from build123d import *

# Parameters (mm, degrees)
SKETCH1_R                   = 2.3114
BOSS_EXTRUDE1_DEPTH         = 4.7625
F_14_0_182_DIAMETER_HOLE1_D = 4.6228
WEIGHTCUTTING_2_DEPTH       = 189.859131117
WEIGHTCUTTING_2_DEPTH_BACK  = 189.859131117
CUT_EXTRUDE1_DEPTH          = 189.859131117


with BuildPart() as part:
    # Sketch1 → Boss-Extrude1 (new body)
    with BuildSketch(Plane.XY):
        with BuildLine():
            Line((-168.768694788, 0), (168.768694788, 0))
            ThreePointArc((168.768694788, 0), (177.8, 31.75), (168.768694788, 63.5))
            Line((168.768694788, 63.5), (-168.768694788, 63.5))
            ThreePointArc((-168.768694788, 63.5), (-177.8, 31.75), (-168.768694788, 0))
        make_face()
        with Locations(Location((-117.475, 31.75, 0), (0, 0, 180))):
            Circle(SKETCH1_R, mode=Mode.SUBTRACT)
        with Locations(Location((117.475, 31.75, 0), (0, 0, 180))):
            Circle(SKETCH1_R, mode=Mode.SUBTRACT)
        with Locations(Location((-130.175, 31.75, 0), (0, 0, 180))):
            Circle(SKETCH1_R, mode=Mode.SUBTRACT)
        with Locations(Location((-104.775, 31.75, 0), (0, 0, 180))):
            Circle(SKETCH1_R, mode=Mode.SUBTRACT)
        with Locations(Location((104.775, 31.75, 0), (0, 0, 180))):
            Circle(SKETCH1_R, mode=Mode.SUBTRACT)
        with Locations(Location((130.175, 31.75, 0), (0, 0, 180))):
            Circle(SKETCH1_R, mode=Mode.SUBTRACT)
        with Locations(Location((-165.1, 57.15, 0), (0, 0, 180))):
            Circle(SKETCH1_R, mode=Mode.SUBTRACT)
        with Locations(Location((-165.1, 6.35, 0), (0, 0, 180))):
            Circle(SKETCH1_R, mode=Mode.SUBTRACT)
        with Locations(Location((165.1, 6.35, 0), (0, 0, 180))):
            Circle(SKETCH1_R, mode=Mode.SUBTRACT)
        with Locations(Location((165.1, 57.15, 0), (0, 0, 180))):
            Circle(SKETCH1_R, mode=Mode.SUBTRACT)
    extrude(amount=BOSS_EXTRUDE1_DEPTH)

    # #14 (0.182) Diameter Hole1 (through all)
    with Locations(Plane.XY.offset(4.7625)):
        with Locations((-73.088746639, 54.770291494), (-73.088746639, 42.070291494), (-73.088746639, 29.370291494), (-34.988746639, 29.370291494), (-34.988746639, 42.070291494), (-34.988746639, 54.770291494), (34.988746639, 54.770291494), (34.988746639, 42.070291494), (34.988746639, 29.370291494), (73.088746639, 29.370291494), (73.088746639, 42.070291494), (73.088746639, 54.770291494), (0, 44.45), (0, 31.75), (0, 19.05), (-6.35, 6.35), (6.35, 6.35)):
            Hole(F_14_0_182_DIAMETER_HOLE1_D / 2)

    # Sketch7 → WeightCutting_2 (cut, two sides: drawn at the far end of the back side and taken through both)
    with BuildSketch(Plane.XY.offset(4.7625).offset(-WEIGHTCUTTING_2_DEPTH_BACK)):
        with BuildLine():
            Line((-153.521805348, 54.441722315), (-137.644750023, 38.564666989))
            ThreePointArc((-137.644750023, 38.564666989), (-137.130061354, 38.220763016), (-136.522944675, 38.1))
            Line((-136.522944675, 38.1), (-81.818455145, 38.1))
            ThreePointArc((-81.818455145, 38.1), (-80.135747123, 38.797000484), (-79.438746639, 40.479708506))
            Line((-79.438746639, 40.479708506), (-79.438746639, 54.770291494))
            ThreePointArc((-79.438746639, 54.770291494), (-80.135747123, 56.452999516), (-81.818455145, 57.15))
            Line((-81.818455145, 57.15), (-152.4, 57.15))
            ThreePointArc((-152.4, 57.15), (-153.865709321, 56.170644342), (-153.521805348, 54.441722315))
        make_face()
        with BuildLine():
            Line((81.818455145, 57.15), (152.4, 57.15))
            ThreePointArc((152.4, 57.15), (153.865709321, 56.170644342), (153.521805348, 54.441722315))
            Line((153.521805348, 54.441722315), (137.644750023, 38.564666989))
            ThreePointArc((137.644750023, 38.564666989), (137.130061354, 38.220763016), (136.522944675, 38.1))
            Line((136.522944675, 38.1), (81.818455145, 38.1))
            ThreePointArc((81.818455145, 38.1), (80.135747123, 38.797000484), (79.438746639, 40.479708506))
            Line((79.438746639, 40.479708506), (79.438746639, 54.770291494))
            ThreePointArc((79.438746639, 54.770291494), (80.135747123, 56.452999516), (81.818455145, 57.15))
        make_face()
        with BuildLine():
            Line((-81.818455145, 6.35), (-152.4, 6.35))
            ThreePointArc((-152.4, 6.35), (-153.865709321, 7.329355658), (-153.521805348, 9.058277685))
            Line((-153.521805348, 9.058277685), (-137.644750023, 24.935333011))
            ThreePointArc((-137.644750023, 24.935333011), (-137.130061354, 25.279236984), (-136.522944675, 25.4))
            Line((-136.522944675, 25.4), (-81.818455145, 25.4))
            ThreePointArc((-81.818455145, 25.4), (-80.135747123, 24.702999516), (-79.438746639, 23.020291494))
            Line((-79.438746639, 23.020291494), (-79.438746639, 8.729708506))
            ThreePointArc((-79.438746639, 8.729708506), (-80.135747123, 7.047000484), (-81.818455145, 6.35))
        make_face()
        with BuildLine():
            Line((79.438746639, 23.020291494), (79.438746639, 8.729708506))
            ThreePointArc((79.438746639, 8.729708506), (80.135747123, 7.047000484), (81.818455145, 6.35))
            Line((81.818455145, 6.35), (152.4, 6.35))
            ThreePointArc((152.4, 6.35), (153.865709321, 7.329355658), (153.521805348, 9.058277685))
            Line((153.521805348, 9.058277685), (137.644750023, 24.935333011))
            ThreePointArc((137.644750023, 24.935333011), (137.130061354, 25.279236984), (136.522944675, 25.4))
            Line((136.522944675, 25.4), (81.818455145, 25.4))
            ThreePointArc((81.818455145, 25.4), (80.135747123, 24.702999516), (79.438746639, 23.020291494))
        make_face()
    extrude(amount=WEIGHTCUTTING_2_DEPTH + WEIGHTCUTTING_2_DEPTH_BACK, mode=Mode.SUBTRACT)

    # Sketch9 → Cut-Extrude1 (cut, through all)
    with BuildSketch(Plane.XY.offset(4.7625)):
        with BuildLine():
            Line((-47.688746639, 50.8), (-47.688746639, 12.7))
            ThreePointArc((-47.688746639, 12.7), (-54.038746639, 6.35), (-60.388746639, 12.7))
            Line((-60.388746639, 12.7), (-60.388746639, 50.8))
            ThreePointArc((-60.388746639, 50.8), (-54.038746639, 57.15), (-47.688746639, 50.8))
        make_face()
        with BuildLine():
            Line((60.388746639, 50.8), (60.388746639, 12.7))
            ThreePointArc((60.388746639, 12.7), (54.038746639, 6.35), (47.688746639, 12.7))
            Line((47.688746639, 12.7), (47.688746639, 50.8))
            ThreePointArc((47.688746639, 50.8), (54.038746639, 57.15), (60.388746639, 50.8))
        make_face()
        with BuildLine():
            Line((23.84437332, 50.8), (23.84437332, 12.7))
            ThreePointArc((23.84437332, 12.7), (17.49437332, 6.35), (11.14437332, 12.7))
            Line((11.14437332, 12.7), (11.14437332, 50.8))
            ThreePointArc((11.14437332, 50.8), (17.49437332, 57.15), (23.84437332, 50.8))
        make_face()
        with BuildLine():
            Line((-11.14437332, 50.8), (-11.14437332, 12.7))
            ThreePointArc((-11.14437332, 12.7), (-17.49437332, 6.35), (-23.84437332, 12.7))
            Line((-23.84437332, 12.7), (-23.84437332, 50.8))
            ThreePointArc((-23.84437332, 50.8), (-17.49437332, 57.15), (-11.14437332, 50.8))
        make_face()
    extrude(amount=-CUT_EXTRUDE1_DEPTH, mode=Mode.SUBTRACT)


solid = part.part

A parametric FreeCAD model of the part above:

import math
import FreeCAD as App
import Part
import Sketcher
from FreeCAD import Vector
Q = App.Units.Quantity

doc = App.newDocument("Part")
body = doc.addObject("PartDesign::Body", "Body")

# Sketch on XY plane
sketch1 = body.newObject("Sketcher::SketchObject", "Sketch")
sketch1.AttachmentSupport = (doc.getObject("XY_Plane"), [""])
sketch1.MapMode = "FlatFace"
sketch1.addGeometry([
    Part.LineSegment(Vector(-168.8, 0, 0), Vector(168.8, 0, 0)),  # 0
    Part.ArcOfCircle(Part.Circle(Vector(117.5, 31.8, 0), Vector(0, 0, 1), 60.3), math.radians(-32), math.radians(32)),  # 1
    Part.LineSegment(Vector(168.8, 63.5, 0), Vector(-168.8, 63.5, 0)),  # 2
    Part.ArcOfCircle(Part.Circle(Vector(-117.5, 31.8, 0), Vector(0, 0, 1), 60.3), math.radians(148), math.radians(212)),  # 3
    Part.Circle(Vector(-165.1, 6.3, 0), Vector(0, 0, 1), 2.3),  # 4
    Part.Circle(Vector(-130.2, 31.8, 0), Vector(0, 0, 1), 2.3),  # 5
    Part.Circle(Vector(-117.5, 31.8, 0), Vector(0, 0, 1), 2.3),  # 6
    Part.Circle(Vector(-104.8, 31.8, 0), Vector(0, 0, 1), 2.3),  # 7
    Part.Circle(Vector(165.1, 6.3, 0), Vector(0, 0, 1), 2.3),  # 8
    Part.Circle(Vector(104.8, 31.8, 0), Vector(0, 0, 1), 2.3),  # 9
    Part.Circle(Vector(117.5, 31.8, 0), Vector(0, 0, 1), 2.3),  # 10
    Part.Circle(Vector(130.2, 31.8, 0), Vector(0, 0, 1), 2.3),  # 11
    Part.Circle(Vector(-165.1, 57.1, 0), Vector(0, 0, 1), 2.3),  # 12
    Part.Circle(Vector(165.1, 57.1, 0), Vector(0, 0, 1), 2.3),  # 13
], False)
sketch1.addConstraint([
    Sketcher.Constraint("Coincident", 0, 2, 1, 1),
    Sketcher.Constraint("Coincident", 1, 2, 2, 1),
    Sketcher.Constraint("Coincident", 2, 2, 3, 1),
    Sketcher.Constraint("Coincident", 3, 2, 0, 1),
    Sketcher.Constraint("Horizontal", 0),
    Sketcher.Constraint("Horizontal", 2),
    Sketcher.Constraint("Coincident", 6, 3, 3, 3),
    Sketcher.Constraint("Coincident", 10, 3, 1, 3),
    Sketcher.Constraint("Equal", 1, 3),
    Sketcher.Constraint("Equal", 4, 5),
    Sketcher.Constraint("Equal", 5, 6),
    Sketcher.Constraint("Equal", 6, 7),
    Sketcher.Constraint("Equal", 7, 8),
    Sketcher.Constraint("Equal", 8, 9),
    Sketcher.Constraint("Equal", 9, 10),
    Sketcher.Constraint("Equal", 10, 11),
    Sketcher.Constraint("Equal", 11, 12),
    Sketcher.Constraint("Equal", 12, 13),
    Sketcher.Constraint("Symmetric", 0, 2, 3, 2, -1, 1),
    Sketcher.Constraint("Symmetric", 4, 3, 8, 3, -2),
    Sketcher.Constraint("Symmetric", 7, 3, 9, 3, -2),
    Sketcher.Constraint("Symmetric", 5, 3, 11, 3, -2),
    Sketcher.Constraint("Symmetric", 12, 3, 13, 3, -2),
    Sketcher.Constraint("Horizontal", 1, 3, 3, 3),
    Sketcher.Constraint("Horizontal", 3, 3, 5, 3),
    Sketcher.Constraint("Horizontal", 6, 3, 7, 3),
    Sketcher.Constraint("Vertical", 4, 3, 12, 3),
    Sketcher.Constraint("Vertical", 0, 2, 1, 2),
    Sketcher.Constraint("Diameter", 4, Q("0.182 in")),
    Sketcher.Constraint("Radius", 1, Q("2.375 in")),
    Sketcher.Constraint("DistanceY", 4, 3, 3, 3, Q("1 in")),
    Sketcher.Constraint("DistanceX", 5, 3, 7, 3, Q("1 in")),
    Sketcher.Constraint("DistanceY", 5, 3, 12, 3, Q("1 in")),
    Sketcher.Constraint("DistanceX", 4, 3, -1, 1, Q("6.5 in")),
    Sketcher.Constraint("DistanceY", -1, 1, 1, 2, Q("2.5 in")),
    Sketcher.Constraint("DistanceX", 5, 3, 3, 3, Q("0.5 in")),
    Sketcher.Constraint("DistanceX", 3, 3, 1, 3, Q("9.25 in")),
])
pad1 = body.newObject("PartDesign::Pad", "Pad")
pad1.Profile = sketch1
pad1.Length = Q("0.1875 in")

# Sketch on XY plane
sketch2 = body.newObject("Sketcher::SketchObject", "Sketch001")
sketch2.AttachmentSupport = (doc.getObject("XY_Plane"), [""])
sketch2.MapMode = "FlatFace"
sketch2.AttachmentOffset = App.Placement(Vector(0, 0, 0.1875 * 25.4), App.Rotation())
sketch2.addGeometry([
    Part.Circle(Vector(-73.1, 54.8, 0), Vector(0, 0, 1), 2.3),  # 0
    Part.Circle(Vector(-73.1, 42.1, 0), Vector(0, 0, 1), 2.3),  # 1
    Part.Circle(Vector(-73.1, 29.4, 0), Vector(0, 0, 1), 2.3),  # 2
    Part.Circle(Vector(-35, 29.4, 0), Vector(0, 0, 1), 2.3),  # 3
    Part.Circle(Vector(-35, 42.1, 0), Vector(0, 0, 1), 2.3),  # 4
    Part.Circle(Vector(-35, 54.8, 0), Vector(0, 0, 1), 2.3),  # 5
    Part.Circle(Vector(35, 54.8, 0), Vector(0, 0, 1), 2.3),  # 6
    Part.Circle(Vector(35, 42.1, 0), Vector(0, 0, 1), 2.3),  # 7
    Part.Circle(Vector(35, 29.4, 0), Vector(0, 0, 1), 2.3),  # 8
    Part.Circle(Vector(73.1, 29.4, 0), Vector(0, 0, 1), 2.3),  # 9
    Part.Circle(Vector(73.1, 42.1, 0), Vector(0, 0, 1), 2.3),  # 10
    Part.Circle(Vector(73.1, 54.8, 0), Vector(0, 0, 1), 2.3),  # 11
    Part.Circle(Vector(0, 44.5, 0), Vector(0, 0, 1), 2.3),  # 12
    Part.Circle(Vector(0, 31.8, 0), Vector(0, 0, 1), 2.3),  # 13
    Part.Circle(Vector(0, 19.1, 0), Vector(0, 0, 1), 2.3),  # 14
    Part.Circle(Vector(-6.3, 6.3, 0), Vector(0, 0, 1), 2.3),  # 15
    Part.Circle(Vector(6.3, 6.3, 0), Vector(0, 0, 1), 2.3),  # 16
], False)
sketch2.addConstraint([
    Sketcher.Constraint("Equal", 0, 1),
    Sketcher.Constraint("Equal", 1, 2),
    Sketcher.Constraint("Equal", 2, 3),
    Sketcher.Constraint("Equal", 3, 4),
    Sketcher.Constraint("Equal", 4, 5),
    Sketcher.Constraint("Equal", 5, 6),
    Sketcher.Constraint("Equal", 6, 7),
    Sketcher.Constraint("Equal", 7, 8),
    Sketcher.Constraint("Equal", 8, 9),
    Sketcher.Constraint("Equal", 9, 10),
    Sketcher.Constraint("Equal", 10, 11),
    Sketcher.Constraint("Equal", 11, 12),
    Sketcher.Constraint("Equal", 12, 13),
    Sketcher.Constraint("Equal", 13, 14),
    Sketcher.Constraint("Equal", 14, 15),
    Sketcher.Constraint("Equal", 15, 16),
    Sketcher.Constraint("Symmetric", 5, 3, 6, 3, -2),
    Sketcher.Constraint("Symmetric", 4, 3, 7, 3, -2),
    Sketcher.Constraint("Symmetric", 3, 3, 8, 3, -2),
    Sketcher.Constraint("Symmetric", 2, 3, 9, 3, -2),
    Sketcher.Constraint("Symmetric", 1, 3, 10, 3, -2),
    Sketcher.Constraint("Symmetric", 0, 3, 11, 3, -2),
    Sketcher.Constraint("Symmetric", 15, 3, 16, 3, -2),
    Sketcher.Constraint("PointOnObject", 12, 3, -2),
    Sketcher.Constraint("PointOnObject", 13, 3, -2),
    Sketcher.Constraint("PointOnObject", 14, 3, -2),
    Sketcher.Constraint("Horizontal", 2, 3, 3, 3),
    Sketcher.Constraint("Horizontal", 1, 3, 4, 3),
    Sketcher.Constraint("Horizontal", 0, 3, 5, 3),
    Sketcher.Constraint("Vertical", 0, 3, 1, 3),
    Sketcher.Constraint("Vertical", 1, 3, 2, 3),
    Sketcher.Constraint("Vertical", 3, 3, 4, 3),
    Sketcher.Constraint("Vertical", 4, 3, 5, 3),
    Sketcher.Constraint("Diameter", 0, Q("0.182 in")),
    Sketcher.Constraint("DistanceY", 2, 3, 0, 3, Q("1 in")),
    Sketcher.Constraint("DistanceY", 14, 3, 12, 3, Q("1 in")),
    Sketcher.Constraint("DistanceY", 15, 3, 13, 3, Q("1 in")),
    Sketcher.Constraint("DistanceY", 1, 3, 0, 3, Q("0.5 in")),
    Sketcher.Constraint("DistanceX", 2, 3, 3, 3, Q("1.5 in")),
    Sketcher.Constraint("DistanceY", 13, 3, 12, 3, Q("0.5 in")),
    Sketcher.Constraint("DistanceX", 15, 3, 16, 3, Q("0.5 in")),
    Sketcher.Constraint("DistanceY", -1, 1, 12, 3, Q("1.75 in")),
    Sketcher.Constraint("DistanceY", -1, 1, 0, 3, Q("54.770291 mm")),
    Sketcher.Constraint("DistanceX", 0, 3, -1, 1, Q("73.088747 mm")),
])
doc.recompute()
hole = body.newObject("PartDesign::Hole", "Hole")
hole.Profile = sketch2
hole.ThreadType = "None"
hole.Diameter = Q("0.182 in")
hole.DepthType = "ThroughAll"

# Sketch on XY plane
sketch3 = body.newObject("Sketcher::SketchObject", "Sketch002")
sketch3.AttachmentSupport = (doc.getObject("XY_Plane"), [""])
sketch3.MapMode = "FlatFace"
sketch3.AttachmentOffset = App.Placement(Vector(0, 0, 0.1875 * 25.4), App.Rotation())
sketch3.addGeometry([
    Part.LineSegment(Vector(-153.5, 54.4, 0), Vector(-137.6, 38.6, 0)),  # 0
    Part.ArcOfCircle(Part.Circle(Vector(-136.5, 39.7, 0), Vector(0, 0, 1), 1.6), math.radians(-135), math.radians(-90)),  # 1
    Part.LineSegment(Vector(-136.5, 38.1, 0), Vector(-81.8, 38.1, 0)),  # 2
    Part.ArcOfCircle(Part.Circle(Vector(-81.8, 40.5, 0), Vector(0, 0, 1), 2.4), math.radians(-90), math.radians(0)),  # 3
    Part.LineSegment(Vector(-79.4, 40.5, 0), Vector(-79.4, 54.8, 0)),  # 4
    Part.ArcOfCircle(Part.Circle(Vector(-81.8, 54.8, 0), Vector(0, 0, 1), 2.4), math.radians(0), math.radians(90)),  # 5
    Part.LineSegment(Vector(-81.8, 57.1, 0), Vector(-152.4, 57.1, 0)),  # 6
    Part.ArcOfCircle(Part.Circle(Vector(-152.4, 55.6, 0), Vector(0, 0, 1), 1.6), math.radians(90), math.radians(225)),  # 7
    Part.LineSegment(Vector(152.4, 57.1, 0), Vector(81.8, 57.1, 0)),  # 8
    Part.ArcOfCircle(Part.Circle(Vector(81.8, 54.8, 0), Vector(0, 0, 1), 2.4), math.radians(90), math.radians(180)),  # 9
    Part.LineSegment(Vector(79.4, 54.8, 0), Vector(79.4, 40.5, 0)),  # 10
    Part.ArcOfCircle(Part.Circle(Vector(81.8, 40.5, 0), Vector(0, 0, 1), 2.4), math.radians(180), math.radians(270)),  # 11
    Part.LineSegment(Vector(81.8, 38.1, 0), Vector(136.5, 38.1, 0)),  # 12
    Part.ArcOfCircle(Part.Circle(Vector(136.5, 39.7, 0), Vector(0, 0, 1), 1.6), math.radians(-90), math.radians(-45)),  # 13
    Part.LineSegment(Vector(137.6, 38.6, 0), Vector(153.5, 54.4, 0)),  # 14
    Part.ArcOfCircle(Part.Circle(Vector(152.4, 55.6, 0), Vector(0, 0, 1), 1.6), math.radians(-45), math.radians(90)),  # 15
    Part.LineSegment(Vector(-152.4, 6.3, 0), Vector(-81.8, 6.3, 0)),  # 16
    Part.ArcOfCircle(Part.Circle(Vector(-81.8, 8.7, 0), Vector(0, 0, 1), 2.4), math.radians(-90), math.radians(0)),  # 17
    Part.LineSegment(Vector(-79.4, 8.7, 0), Vector(-79.4, 23, 0)),  # 18
    Part.ArcOfCircle(Part.Circle(Vector(-81.8, 23, 0), Vector(0, 0, 1), 2.4), math.radians(0), math.radians(90)),  # 19
    Part.LineSegment(Vector(-81.8, 25.4, 0), Vector(-136.5, 25.4, 0)),  # 20
    Part.ArcOfCircle(Part.Circle(Vector(-136.5, 23.8, 0), Vector(0, 0, 1), 1.6), math.radians(90), math.radians(135)),  # 21
    Part.LineSegment(Vector(-137.6, 24.9, 0), Vector(-153.5, 9.1, 0)),  # 22
    Part.ArcOfCircle(Part.Circle(Vector(-152.4, 7.9, 0), Vector(0, 0, 1), 1.6), math.radians(135), math.radians(270)),  # 23
    Part.LineSegment(Vector(79.4, 23, 0), Vector(79.4, 8.7, 0)),  # 24
    Part.ArcOfCircle(Part.Circle(Vector(81.8, 8.7, 0), Vector(0, 0, 1), 2.4), math.radians(180), math.radians(270)),  # 25
    Part.LineSegment(Vector(81.8, 6.3, 0), Vector(152.4, 6.3, 0)),  # 26
    Part.ArcOfCircle(Part.Circle(Vector(152.4, 7.9, 0), Vector(0, 0, 1), 1.6), math.radians(-90), math.radians(45)),  # 27
    Part.LineSegment(Vector(153.5, 9.1, 0), Vector(137.6, 24.9, 0)),  # 28
    Part.ArcOfCircle(Part.Circle(Vector(136.5, 23.8, 0), Vector(0, 0, 1), 1.6), math.radians(45), math.radians(90)),  # 29
    Part.LineSegment(Vector(136.5, 25.4, 0), Vector(81.8, 25.4, 0)),  # 30
    Part.ArcOfCircle(Part.Circle(Vector(81.8, 23, 0), Vector(0, 0, 1), 2.4), math.radians(90), math.radians(180)),  # 31
], False)
sketch3.addConstraint([
    Sketcher.Constraint("Tangent", 0, 2, 1, 1),
    Sketcher.Constraint("Tangent", 1, 2, 2, 1),
    Sketcher.Constraint("Tangent", 2, 2, 3, 1),
    Sketcher.Constraint("Tangent", 3, 2, 4, 1),
    Sketcher.Constraint("Tangent", 4, 2, 5, 1),
    Sketcher.Constraint("Tangent", 5, 2, 6, 1),
    Sketcher.Constraint("Tangent", 6, 2, 7, 1),
    Sketcher.Constraint("Tangent", 7, 2, 0, 1),
    Sketcher.Constraint("Tangent", 8, 2, 9, 1),
    Sketcher.Constraint("Tangent", 9, 2, 10, 1),
    Sketcher.Constraint("Tangent", 10, 2, 11, 1),
    Sketcher.Constraint("Tangent", 11, 2, 12, 1),
    Sketcher.Constraint("Tangent", 12, 2, 13, 1),
    Sketcher.Constraint("Tangent", 13, 2, 14, 1),
    Sketcher.Constraint("Tangent", 14, 2, 15, 1),
    Sketcher.Constraint("Tangent", 15, 2, 8, 1),
    Sketcher.Constraint("Tangent", 16, 2, 17, 1),
    Sketcher.Constraint("Tangent", 17, 2, 18, 1),
    Sketcher.Constraint("Tangent", 18, 2, 19, 1),
    Sketcher.Constraint("Tangent", 19, 2, 20, 1),
    Sketcher.Constraint("Tangent", 20, 2, 21, 1),
    Sketcher.Constraint("Tangent", 21, 2, 22, 1),
    Sketcher.Constraint("Tangent", 22, 2, 23, 1),
    Sketcher.Constraint("Tangent", 23, 2, 16, 1),
    Sketcher.Constraint("Tangent", 24, 2, 25, 1),
    Sketcher.Constraint("Tangent", 25, 2, 26, 1),
    Sketcher.Constraint("Tangent", 26, 2, 27, 1),
    Sketcher.Constraint("Tangent", 27, 2, 28, 1),
    Sketcher.Constraint("Tangent", 28, 2, 29, 1),
    Sketcher.Constraint("Tangent", 29, 2, 30, 1),
    Sketcher.Constraint("Tangent", 30, 2, 31, 1),
    Sketcher.Constraint("Tangent", 31, 2, 24, 1),
    Sketcher.Constraint("Horizontal", 2),
    Sketcher.Constraint("Vertical", 4),
    Sketcher.Constraint("Horizontal", 6),
    Sketcher.Constraint("Horizontal", 8),
    Sketcher.Constraint("Vertical", 10),
    Sketcher.Constraint("Horizontal", 12),
    Sketcher.Constraint("Horizontal", 16),
    Sketcher.Constraint("Vertical", 18),
    Sketcher.Constraint("Horizontal", 20),
    Sketcher.Constraint("Vertical", 24),
    Sketcher.Constraint("Horizontal", 26),
    Sketcher.Constraint("Horizontal", 30),
    Sketcher.Constraint("Equal", 3, 5),
    Sketcher.Constraint("Equal", 1, 7),
    Sketcher.Constraint("Equal", 5, 9),
    Sketcher.Constraint("Equal", 9, 11),
    Sketcher.Constraint("Equal", 7, 13),
    Sketcher.Constraint("Equal", 13, 15),
    Sketcher.Constraint("Equal", 11, 17),
    Sketcher.Constraint("Equal", 17, 19),
    Sketcher.Constraint("Equal", 15, 21),
    Sketcher.Constraint("Equal", 21, 23),
    Sketcher.Constraint("Equal", 19, 25),
    Sketcher.Constraint("Equal", 23, 27),
    Sketcher.Constraint("Equal", 27, 29),
    Sketcher.Constraint("Equal", 25, 31),
    Sketcher.Constraint("Symmetric", 5, 3, 9, 3, -2),
    Sketcher.Constraint("Symmetric", 1, 3, 13, 3, -2),
    Sketcher.Constraint("Symmetric", 17, 3, 25, 3, -2),
    Sketcher.Constraint("Symmetric", 21, 3, 29, 3, -2),
    Sketcher.Constraint("Perpendicular", 0, 14),
    Sketcher.Constraint("Parallel", 14, 22),
    Sketcher.Constraint("Perpendicular", 22, 28),
    Sketcher.Constraint("Horizontal", 0, 2, 13, 2),
    Sketcher.Constraint("Vertical", 5, 3, 17, 3),
    Sketcher.Constraint("Vertical", 1, 3, 21, 3),
    Sketcher.Constraint("Vertical", 7, 3, 23, 3),
    Sketcher.Constraint("DistanceX", 7, 3, -1, 1, Q("6 in")),
    Sketcher.Constraint("DistanceY", -1, 1, 19, 2, Q("1 in")),
    Sketcher.Constraint("DistanceY", -1, 1, 1, 2, Q("1.5 in")),
    Sketcher.Constraint("DistanceY", -1, 1, 5, 2, Q("2.25 in")),
    Sketcher.Constraint("Radius", 3, Q("2.379709 mm")),
    Sketcher.Constraint("Radius", 1, Q("1.586472 mm")),
    Sketcher.Constraint("DistanceX", 2, 1, 2, 2, Q("54.70449 mm")),
])
pocket1 = body.newObject("PartDesign::Pocket", "Pocket")
pocket1.Profile = sketch3
pocket1.Type = "ThroughAll"
pocket1.Midplane = True

# Sketch on XY plane
sketch4 = body.newObject("Sketcher::SketchObject", "Sketch003")
sketch4.AttachmentSupport = (doc.getObject("XY_Plane"), [""])
sketch4.MapMode = "FlatFace"
sketch4.AttachmentOffset = App.Placement(Vector(0, 0, 0.1875 * 25.4), App.Rotation())
sketch4.addGeometry([
    Part.LineSegment(Vector(-48, 13, 0), Vector(-48, 51, 0)),  # 0
    Part.ArcOfCircle(Part.Circle(Vector(-54, 51, 0), Vector(0, 0, 1), 6), math.radians(0), math.radians(180)),  # 1
    Part.LineSegment(Vector(-60, 51, 0), Vector(-60, 13, 0)),  # 2
    Part.ArcOfCircle(Part.Circle(Vector(-54, 13, 0), Vector(0, 0, 1), 6), math.radians(180), math.radians(360)),  # 3
    Part.LineSegment(Vector(60, 13, 0), Vector(60, 51, 0)),  # 4
    Part.ArcOfCircle(Part.Circle(Vector(54, 51, 0), Vector(0, 0, 1), 6), math.radians(0), math.radians(180)),  # 5
    Part.LineSegment(Vector(48, 51, 0), Vector(48, 13, 0)),  # 6
    Part.ArcOfCircle(Part.Circle(Vector(54, 13, 0), Vector(0, 0, 1), 6), math.radians(180), math.radians(360)),  # 7
    Part.LineSegment(Vector(24, 13, 0), Vector(24, 51, 0)),  # 8
    Part.ArcOfCircle(Part.Circle(Vector(17, 51, 0), Vector(0, 0, 1), 6), math.radians(0), math.radians(180)),  # 9
    Part.LineSegment(Vector(11, 51, 0), Vector(11, 13, 0)),  # 10
    Part.ArcOfCircle(Part.Circle(Vector(17, 13, 0), Vector(0, 0, 1), 6), math.radians(180), math.radians(360)),  # 11
    Part.LineSegment(Vector(-11, 13, 0), Vector(-11, 51, 0)),  # 12
    Part.ArcOfCircle(Part.Circle(Vector(-17, 51, 0), Vector(0, 0, 1), 6), math.radians(0), math.radians(180)),  # 13
    Part.LineSegment(Vector(-24, 51, 0), Vector(-24, 13, 0)),  # 14
    Part.ArcOfCircle(Part.Circle(Vector(-17, 13, 0), Vector(0, 0, 1), 6), math.radians(180), math.radians(360)),  # 15
], False)
sketch4.addConstraint([
    Sketcher.Constraint("Tangent", 0, 2, 1, 1),
    Sketcher.Constraint("Tangent", 1, 2, 2, 1),
    Sketcher.Constraint("Tangent", 2, 2, 3, 1),
    Sketcher.Constraint("Tangent", 3, 2, 0, 1),
    Sketcher.Constraint("Tangent", 4, 2, 5, 1),
    Sketcher.Constraint("Tangent", 5, 2, 6, 1),
    Sketcher.Constraint("Tangent", 6, 2, 7, 1),
    Sketcher.Constraint("Tangent", 7, 2, 4, 1),
    Sketcher.Constraint("Tangent", 8, 2, 9, 1),
    Sketcher.Constraint("Tangent", 9, 2, 10, 1),
    Sketcher.Constraint("Tangent", 10, 2, 11, 1),
    Sketcher.Constraint("Tangent", 11, 2, 8, 1),
    Sketcher.Constraint("Tangent", 12, 2, 13, 1),
    Sketcher.Constraint("Tangent", 13, 2, 14, 1),
    Sketcher.Constraint("Tangent", 14, 2, 15, 1),
    Sketcher.Constraint("Tangent", 15, 2, 12, 1),
    Sketcher.Constraint("Vertical", 0),
    Sketcher.Constraint("Vertical", 2),
    Sketcher.Constraint("Vertical", 4),
    Sketcher.Constraint("Vertical", 6),
    Sketcher.Constraint("Vertical", 8),
    Sketcher.Constraint("Vertical", 10),
    Sketcher.Constraint("Vertical", 12),
    Sketcher.Constraint("Vertical", 14),
    Sketcher.Constraint("Equal", 3, 5),
    Sketcher.Constraint("Equal", 7, 9),
    Sketcher.Constraint("Equal", 11, 13),
    Sketcher.Constraint("Symmetric", 1, 3, 5, 3, -2),
    Sketcher.Constraint("Symmetric", 9, 3, 13, 3, -2),
    Sketcher.Constraint("Horizontal", 3, 3, 7, 3),
    Sketcher.Constraint("Horizontal", 5, 3, 9, 3),
    Sketcher.Constraint("Horizontal", 7, 3, 11, 3),
    Sketcher.Constraint("Horizontal", 11, 3, 15, 3),
    Sketcher.Constraint("Radius", 1, Q("0.25 in")),
    Sketcher.Constraint("DistanceY", 0, 1, 0, 2, Q("1.5 in")),
    Sketcher.Constraint("DistanceY", -1, 1, 1, 3, Q("2 in")),
    Sketcher.Constraint("DistanceX", 1, 3, 9, 3, Q("71.53312 mm")),
    Sketcher.Constraint("DistanceX", 1, 3, -1, 1, Q("54.038747 mm")),
])
pocket2 = body.newObject("PartDesign::Pocket", "Pocket001")
pocket2.Profile = sketch4
pocket2.Type = "ThroughAll"

doc.recompute()
